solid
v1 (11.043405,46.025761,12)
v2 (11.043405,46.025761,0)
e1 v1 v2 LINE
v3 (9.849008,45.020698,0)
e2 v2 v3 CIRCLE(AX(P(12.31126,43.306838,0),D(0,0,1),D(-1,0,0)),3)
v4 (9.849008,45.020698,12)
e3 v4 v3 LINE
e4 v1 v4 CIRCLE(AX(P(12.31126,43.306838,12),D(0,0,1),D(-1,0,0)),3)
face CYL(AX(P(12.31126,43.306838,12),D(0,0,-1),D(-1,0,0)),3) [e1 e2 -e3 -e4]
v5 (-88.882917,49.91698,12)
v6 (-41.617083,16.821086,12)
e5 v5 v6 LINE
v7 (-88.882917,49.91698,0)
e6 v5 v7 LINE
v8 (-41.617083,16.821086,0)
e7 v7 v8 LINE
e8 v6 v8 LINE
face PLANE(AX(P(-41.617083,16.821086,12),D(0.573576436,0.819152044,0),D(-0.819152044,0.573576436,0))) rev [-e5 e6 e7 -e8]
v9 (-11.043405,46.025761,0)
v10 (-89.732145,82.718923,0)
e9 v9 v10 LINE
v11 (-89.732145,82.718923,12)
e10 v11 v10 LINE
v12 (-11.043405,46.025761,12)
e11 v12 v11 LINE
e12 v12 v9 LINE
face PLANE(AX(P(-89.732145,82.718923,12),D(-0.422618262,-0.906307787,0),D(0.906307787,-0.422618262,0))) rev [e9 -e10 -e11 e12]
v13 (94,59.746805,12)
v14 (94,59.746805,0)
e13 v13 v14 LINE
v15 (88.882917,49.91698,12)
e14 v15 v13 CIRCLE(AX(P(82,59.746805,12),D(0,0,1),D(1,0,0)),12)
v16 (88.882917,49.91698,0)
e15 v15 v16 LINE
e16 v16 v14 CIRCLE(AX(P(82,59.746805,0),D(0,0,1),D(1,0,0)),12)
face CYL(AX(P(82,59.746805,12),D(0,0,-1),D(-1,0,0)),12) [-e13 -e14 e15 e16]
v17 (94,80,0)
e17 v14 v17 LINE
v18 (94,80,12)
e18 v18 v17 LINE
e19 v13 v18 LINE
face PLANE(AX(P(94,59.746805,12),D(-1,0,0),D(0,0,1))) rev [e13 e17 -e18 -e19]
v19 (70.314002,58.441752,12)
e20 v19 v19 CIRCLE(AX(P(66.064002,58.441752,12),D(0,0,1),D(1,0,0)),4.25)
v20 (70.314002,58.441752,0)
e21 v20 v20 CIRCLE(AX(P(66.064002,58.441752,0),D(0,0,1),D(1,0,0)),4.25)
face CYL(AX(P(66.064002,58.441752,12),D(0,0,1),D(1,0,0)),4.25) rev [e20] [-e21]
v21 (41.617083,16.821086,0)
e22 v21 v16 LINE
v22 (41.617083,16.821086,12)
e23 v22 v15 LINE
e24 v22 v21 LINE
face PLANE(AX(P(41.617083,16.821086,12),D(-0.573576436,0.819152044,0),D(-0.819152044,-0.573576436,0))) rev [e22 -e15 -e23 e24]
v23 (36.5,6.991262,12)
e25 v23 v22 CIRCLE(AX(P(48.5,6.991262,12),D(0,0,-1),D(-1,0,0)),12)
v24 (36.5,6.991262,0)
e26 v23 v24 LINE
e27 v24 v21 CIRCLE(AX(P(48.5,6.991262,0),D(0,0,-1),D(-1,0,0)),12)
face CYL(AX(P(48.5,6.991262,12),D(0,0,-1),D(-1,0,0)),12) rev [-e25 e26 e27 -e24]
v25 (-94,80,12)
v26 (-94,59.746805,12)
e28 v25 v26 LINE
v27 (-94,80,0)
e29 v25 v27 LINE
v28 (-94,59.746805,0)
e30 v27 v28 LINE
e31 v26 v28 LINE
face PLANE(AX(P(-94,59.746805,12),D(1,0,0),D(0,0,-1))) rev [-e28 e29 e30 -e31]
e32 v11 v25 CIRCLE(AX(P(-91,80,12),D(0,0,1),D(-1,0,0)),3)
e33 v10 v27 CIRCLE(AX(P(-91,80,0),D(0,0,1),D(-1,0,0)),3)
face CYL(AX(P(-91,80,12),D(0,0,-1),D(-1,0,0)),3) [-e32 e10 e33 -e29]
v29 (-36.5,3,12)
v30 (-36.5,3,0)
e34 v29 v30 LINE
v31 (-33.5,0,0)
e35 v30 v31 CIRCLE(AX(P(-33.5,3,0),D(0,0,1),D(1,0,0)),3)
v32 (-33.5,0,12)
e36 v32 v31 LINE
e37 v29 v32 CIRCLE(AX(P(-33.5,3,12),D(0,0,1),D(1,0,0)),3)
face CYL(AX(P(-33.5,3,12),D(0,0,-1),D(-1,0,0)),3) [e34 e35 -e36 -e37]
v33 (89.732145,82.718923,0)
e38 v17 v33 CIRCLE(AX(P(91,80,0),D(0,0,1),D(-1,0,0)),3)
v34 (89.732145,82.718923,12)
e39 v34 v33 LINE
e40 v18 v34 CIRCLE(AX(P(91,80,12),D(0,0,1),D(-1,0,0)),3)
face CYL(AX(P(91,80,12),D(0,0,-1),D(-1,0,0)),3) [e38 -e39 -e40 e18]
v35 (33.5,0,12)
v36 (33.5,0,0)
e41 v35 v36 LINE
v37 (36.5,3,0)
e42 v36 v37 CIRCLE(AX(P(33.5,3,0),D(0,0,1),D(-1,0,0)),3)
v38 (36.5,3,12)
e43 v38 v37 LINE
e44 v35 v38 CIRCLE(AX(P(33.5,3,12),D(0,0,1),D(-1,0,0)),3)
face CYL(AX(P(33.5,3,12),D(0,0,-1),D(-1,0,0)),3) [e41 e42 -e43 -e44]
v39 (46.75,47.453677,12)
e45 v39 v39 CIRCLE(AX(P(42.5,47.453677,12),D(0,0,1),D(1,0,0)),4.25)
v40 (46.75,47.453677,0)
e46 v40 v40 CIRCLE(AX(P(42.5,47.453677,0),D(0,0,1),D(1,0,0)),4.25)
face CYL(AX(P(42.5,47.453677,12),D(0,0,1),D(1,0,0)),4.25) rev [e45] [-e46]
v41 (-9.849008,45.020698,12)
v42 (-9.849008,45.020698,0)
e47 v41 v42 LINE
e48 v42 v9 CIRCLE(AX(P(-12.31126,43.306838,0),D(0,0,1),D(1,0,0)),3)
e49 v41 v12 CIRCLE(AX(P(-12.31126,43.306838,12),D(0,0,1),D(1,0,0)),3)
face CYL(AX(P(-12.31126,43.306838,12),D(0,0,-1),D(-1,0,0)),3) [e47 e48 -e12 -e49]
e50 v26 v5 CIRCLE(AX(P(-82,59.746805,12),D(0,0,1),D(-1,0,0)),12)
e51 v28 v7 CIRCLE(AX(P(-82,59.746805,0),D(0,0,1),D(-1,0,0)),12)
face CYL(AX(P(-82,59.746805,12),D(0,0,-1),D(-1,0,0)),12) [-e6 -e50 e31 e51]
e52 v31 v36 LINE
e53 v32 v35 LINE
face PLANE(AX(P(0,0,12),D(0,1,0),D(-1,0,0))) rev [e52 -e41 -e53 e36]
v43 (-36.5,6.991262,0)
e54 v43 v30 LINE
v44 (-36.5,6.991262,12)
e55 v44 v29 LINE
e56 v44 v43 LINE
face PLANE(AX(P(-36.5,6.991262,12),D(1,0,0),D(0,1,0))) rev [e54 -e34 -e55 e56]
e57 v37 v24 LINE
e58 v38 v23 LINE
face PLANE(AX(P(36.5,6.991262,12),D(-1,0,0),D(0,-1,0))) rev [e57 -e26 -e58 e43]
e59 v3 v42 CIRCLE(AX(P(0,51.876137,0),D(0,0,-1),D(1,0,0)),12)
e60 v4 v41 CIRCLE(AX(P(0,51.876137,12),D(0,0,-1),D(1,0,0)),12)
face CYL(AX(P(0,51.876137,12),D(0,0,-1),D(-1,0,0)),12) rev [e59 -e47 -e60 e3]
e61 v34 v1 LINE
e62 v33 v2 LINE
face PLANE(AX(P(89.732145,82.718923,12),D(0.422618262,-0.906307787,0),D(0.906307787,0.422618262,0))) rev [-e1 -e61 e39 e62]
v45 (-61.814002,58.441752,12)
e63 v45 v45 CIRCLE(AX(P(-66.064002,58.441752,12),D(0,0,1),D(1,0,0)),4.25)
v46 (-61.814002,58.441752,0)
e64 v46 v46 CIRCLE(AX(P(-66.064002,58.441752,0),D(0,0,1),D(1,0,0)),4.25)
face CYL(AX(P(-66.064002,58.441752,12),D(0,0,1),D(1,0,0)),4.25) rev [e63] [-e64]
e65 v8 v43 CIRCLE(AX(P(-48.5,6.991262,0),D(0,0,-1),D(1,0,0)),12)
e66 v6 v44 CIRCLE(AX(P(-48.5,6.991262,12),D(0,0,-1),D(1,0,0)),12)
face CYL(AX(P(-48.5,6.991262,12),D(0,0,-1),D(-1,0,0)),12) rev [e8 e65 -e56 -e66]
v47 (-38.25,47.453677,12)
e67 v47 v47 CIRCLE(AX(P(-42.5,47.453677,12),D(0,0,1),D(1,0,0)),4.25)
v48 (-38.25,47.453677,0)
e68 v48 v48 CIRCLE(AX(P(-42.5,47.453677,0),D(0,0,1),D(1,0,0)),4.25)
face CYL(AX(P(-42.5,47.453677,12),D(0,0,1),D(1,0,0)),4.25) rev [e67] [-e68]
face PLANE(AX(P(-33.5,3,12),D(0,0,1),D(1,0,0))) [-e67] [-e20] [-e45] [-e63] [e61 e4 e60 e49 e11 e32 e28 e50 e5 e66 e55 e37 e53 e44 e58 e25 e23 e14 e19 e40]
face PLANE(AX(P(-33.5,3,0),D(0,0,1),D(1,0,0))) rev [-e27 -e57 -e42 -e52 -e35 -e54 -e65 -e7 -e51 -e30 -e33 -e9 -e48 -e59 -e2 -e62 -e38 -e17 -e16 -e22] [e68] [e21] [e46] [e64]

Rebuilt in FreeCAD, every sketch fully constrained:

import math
import FreeCAD as App
import Part
import Sketcher
from FreeCAD import Vector
Q = App.Units.Quantity

doc = App.newDocument("Part")
params = doc.addObject("Spreadsheet::Sheet", "Params")
for row, (alias, value) in enumerate([
    ("sketch1_radius", "12 mm"),
    ("sketch1_radius2", "3 mm"),
    ("sketch1_width", "67 mm"),
    ("pad1_length", "12 mm"),
    ("sketch2_diameter", "8.5 mm"),
    ("hole_diameter", "8.5 mm"),
    ("hole_depth", "22 mm"),
], start=1):
    params.set(f"A{row}", alias)
    params.set(f"B{row}", "=" + value)
    params.setAlias(f"B{row}", alias)

body = doc.addObject("PartDesign::Body", "Body")

# Sketch on XY plane
sketch1 = body.newObject("Sketcher::SketchObject", "Sketch")
sketch1.AttachmentSupport = (doc.getObject("XY_Plane"), [""])
sketch1.MapMode = "FlatFace"
sketch1.addGeometry(Part.LineSegment(Vector(36.5, 3, 0), Vector(36.5, 7, 0)), False)
sketch1.addGeometry(Part.ArcOfCircle(Part.Circle(Vector(48.5, 7, 0), Vector(0, 0, 1), 12), math.radians(125), math.radians(180)), False)
sketch1.addGeometry(Part.LineSegment(Vector(41.6, 16.8, 0), Vector(88.9, 49.9, 0)), False)
sketch1.addGeometry(Part.ArcOfCircle(Part.Circle(Vector(82, 59.7, 0), Vector(0, 0, 1), 12), math.radians(-55), math.radians(0)), False)
sketch1.addGeometry(Part.LineSegment(Vector(94, 59.7, 0), Vector(94, 80, 0)), False)
sketch1.addGeometry(Part.ArcOfCircle(Part.Circle(Vector(91, 80, 0), Vector(0, 0, 1), 3), math.radians(0), math.radians(115)), False)
sketch1.addGeometry(Part.LineSegment(Vector(89.7, 82.7, 0), Vector(11, 46, 0)), False)
sketch1.addGeometry(Part.ArcOfCircle(Part.Circle(Vector(12.3, 43.3, 0), Vector(0, 0, 1), 3), math.radians(115), math.radians(145)), False)
sketch1.addGeometry(Part.ArcOfCircle(Part.Circle(Vector(0, 51.9, 0), Vector(0, 0, 1), 12), math.radians(-145), math.radians(-35)), False)
sketch1.addGeometry(Part.ArcOfCircle(Part.Circle(Vector(-12.3, 43.3, 0), Vector(0, 0, 1), 3), math.radians(35), math.radians(65)), False)
sketch1.addGeometry(Part.LineSegment(Vector(-11, 46, 0), Vector(-89.7, 82.7, 0)), False)
sketch1.addGeometry(Part.ArcOfCircle(Part.Circle(Vector(-91, 80, 0), Vector(0, 0, 1), 3), math.radians(65), math.radians(180)), False)
sketch1.addGeometry(Part.LineSegment(Vector(-94, 80, 0), Vector(-94, 59.7, 0)), False)
sketch1.addGeometry(Part.ArcOfCircle(Part.Circle(Vector(-82, 59.7, 0), Vector(0, 0, 1), 12), math.radians(-180), math.radians(-125)), False)
sketch1.addGeometry(Part.LineSegment(Vector(-88.9, 49.9, 0), Vector(-41.6, 16.8, 0)), False)
sketch1.addGeometry(Part.ArcOfCircle(Part.Circle(Vector(-48.5, 7, 0), Vector(0, 0, 1), 12), math.radians(0), math.radians(55)), False)
sketch1.addGeometry(Part.LineSegment(Vector(-36.5, 7, 0), Vector(-36.5, 3, 0)), False)
sketch1.addGeometry(Part.ArcOfCircle(Part.Circle(Vector(-33.5, 3, 0), Vector(0, 0, 1), 3), math.radians(180), math.radians(270)), False)
sketch1.addGeometry(Part.LineSegment(Vector(-33.5, 0, 0), Vector(33.5, 0, 0)), False)
sketch1.addGeometry(Part.ArcOfCircle(Part.Circle(Vector(33.5, 3, 0), Vector(0, 0, 1), 3), math.radians(-90), math.radians(0)), False)
sketch1.addConstraint(Sketcher.Constraint("Tangent", 0, 2, 1, 2))
sketch1.addConstraint(Sketcher.Constraint("Tangent", 1, 1, 2, 1))
sketch1.addConstraint(Sketcher.Constraint("Tangent", 2, 2, 3, 1))
sketch1.addConstraint(Sketcher.Constraint("Tangent", 3, 2, 4, 1))
sketch1.addConstraint(Sketcher.Constraint("Tangent", 4, 2, 5, 1))
sketch1.addConstraint(Sketcher.Constraint("Tangent", 5, 2, 6, 1))
sketch1.addConstraint(Sketcher.Constraint("Tangent", 6, 2, 7, 1))
sketch1.addConstraint(Sketcher.Constraint("Tangent", 7, 2, 8, 2))
sketch1.addConstraint(Sketcher.Constraint("Tangent", 8, 1, 9, 1))
sketch1.addConstraint(Sketcher.Constraint("Tangent", 9, 2, 10, 1))
sketch1.addConstraint(Sketcher.Constraint("Tangent", 10, 2, 11, 1))
sketch1.addConstraint(Sketcher.Constraint("Tangent", 11, 2, 12, 1))
sketch1.addConstraint(Sketcher.Constraint("Tangent", 12, 2, 13, 1))
sketch1.addConstraint(Sketcher.Constraint("Tangent", 13, 2, 14, 1))
sketch1.addConstraint(Sketcher.Constraint("Tangent", 14, 2, 15, 2))
sketch1.addConstraint(Sketcher.Constraint("Tangent", 15, 1, 16, 1))
sketch1.addConstraint(Sketcher.Constraint("Tangent", 16, 2, 17, 1))
sketch1.addConstraint(Sketcher.Constraint("Tangent", 17, 2, 18, 1))
sketch1.addConstraint(Sketcher.Constraint("Tangent", 18, 2, 19, 1))
sketch1.addConstraint(Sketcher.Constraint("Tangent", 19, 2, 0, 1))
sketch1.addConstraint(Sketcher.Constraint("Vertical", 0))
sketch1.addConstraint(Sketcher.Constraint("Vertical", 4))
sketch1.addConstraint(Sketcher.Constraint("Vertical", 12))
sketch1.addConstraint(Sketcher.Constraint("Vertical", 16))
sketch1.addConstraint(Sketcher.Constraint("Horizontal", 18))
sketch1.addConstraint(Sketcher.Constraint("Equal", 1, 3))
sketch1.addConstraint(Sketcher.Constraint("Equal", 5, 7))
sketch1.addConstraint(Sketcher.Constraint("Equal", 3, 8))
sketch1.addConstraint(Sketcher.Constraint("Equal", 7, 9))
sketch1.addConstraint(Sketcher.Constraint("Equal", 9, 11))
sketch1.addConstraint(Sketcher.Constraint("Equal", 8, 13))
sketch1.addConstraint(Sketcher.Constraint("Equal", 13, 15))
sketch1.addConstraint(Sketcher.Constraint("Equal", 11, 17))
sketch1.addConstraint(Sketcher.Constraint("Equal", 17, 19))
sketch1.addConstraint(Sketcher.Constraint("Symmetric", 17, 2, 18, 2, -1, 1))
sketch1.addConstraint(Sketcher.Constraint("Symmetric", 7, 3, 9, 3, -2))
sketch1.addConstraint(Sketcher.Constraint("Symmetric", 5, 3, 11, 3, -2))
sketch1.addConstraint(Sketcher.Constraint("Symmetric", 2, 2, 13, 2, -2))
sketch1.addConstraint(Sketcher.Constraint("Radius", 1, Q("12 mm")))
sketch1.addConstraint(Sketcher.Constraint("Radius", 5, Q("3 mm")))
sketch1.addConstraint(Sketcher.Constraint("DistanceX", 18, 1, 18, 2, Q("67 mm")))
sketch1.addConstraint(Sketcher.Constraint("Angle", 2, Q("35 deg")))
sketch1.addConstraint(Sketcher.Constraint("Angle", 6, Q("-155 deg")))
sketch1.addConstraint(Sketcher.Constraint("DistanceX", -1, 1, 3, 3, Q("82 mm")))
sketch1.addConstraint(Sketcher.Constraint("DistanceY", -1, 1, 5, 3, Q("80 mm")))
sketch1.addConstraint(Sketcher.Constraint("DistanceY", 0, 1, 0, 2, Q("3.991262 mm")))
sketch1.addConstraint(Sketcher.Constraint("DistanceY", 7, 3, 8, 3, Q("8.569299 mm")))
sketch1.setExpression("Constraints[38]", "Params.sketch1_radius")
sketch1.setExpression("Constraints[39]", "Params.sketch1_radius2")
sketch1.setExpression("Constraints[40]", "Params.sketch1_width")
pad1 = body.newObject("PartDesign::Pad", "Pad")
pad1.Profile = sketch1
pad1.setExpression("Length", "Params.pad1_length")

# Sketch on XY plane
sketch2 = body.newObject("Sketcher::SketchObject", "Sketch001")
sketch2.AttachmentSupport = (doc.getObject("XY_Plane"), [""])
sketch2.MapMode = "FlatFace"
sketch2.AttachmentOffset = App.Placement(Vector(0, 0, 12), App.Rotation())
sketch2.addGeometry(Part.Circle(Vector(-66.1, 58.4, 0), Vector(0, 0, 1), 4.2), False)
sketch2.addGeometry(Part.Circle(Vector(-42.5, 47.5, 0), Vector(0, 0, 1), 4.2), False)
sketch2.addGeometry(Part.Circle(Vector(66.1, 58.4, 0), Vector(0, 0, 1), 4.2), False)
sketch2.addGeometry(Part.Circle(Vector(42.5, 47.5, 0), Vector(0, 0, 1), 4.2), False)
sketch2.addConstraint(Sketcher.Constraint("Equal", 0, 1))
sketch2.addConstraint(Sketcher.Constraint("Equal", 1, 2))
sketch2.addConstraint(Sketcher.Constraint("Equal", 2, 3))
sketch2.addConstraint(Sketcher.Constraint("Symmetric", 0, 3, 2, 3, -2))
sketch2.addConstraint(Sketcher.Constraint("Symmetric", 1, 3, 3, 3, -2))
sketch2.addConstraint(Sketcher.Constraint("Diameter", 0, Q("8.5 mm")))
sketch2.addConstraint(Sketcher.Constraint("DistanceX", 1, 3, 3, 3, Q("85 mm")))
sketch2.addConstraint(Sketcher.Constraint("DistanceX", 0, 3, -1, 1, Q("66.064002 mm")))
sketch2.addConstraint(Sketcher.Constraint("DistanceY", -1, 1, 0, 3, Q("58.441752 mm")))
sketch2.addConstraint(Sketcher.Constraint("DistanceY", -1, 1, 1, 3, Q("47.453677 mm")))
sketch2.setExpression("Constraints[5]", "Params.sketch2_diameter")
doc.recompute()
hole = body.newObject("PartDesign::Hole", "Hole")
hole.Profile = sketch2
hole.ThreadType = "None"
hole.setExpression("Diameter", "Params.hole_diameter")
hole.DepthType = "Dimension"
hole.setExpression("Depth", "Params.hole_depth")
hole.DrillPoint = "Angled"
hole.DrillPointAngle = 118

doc.recompute()
